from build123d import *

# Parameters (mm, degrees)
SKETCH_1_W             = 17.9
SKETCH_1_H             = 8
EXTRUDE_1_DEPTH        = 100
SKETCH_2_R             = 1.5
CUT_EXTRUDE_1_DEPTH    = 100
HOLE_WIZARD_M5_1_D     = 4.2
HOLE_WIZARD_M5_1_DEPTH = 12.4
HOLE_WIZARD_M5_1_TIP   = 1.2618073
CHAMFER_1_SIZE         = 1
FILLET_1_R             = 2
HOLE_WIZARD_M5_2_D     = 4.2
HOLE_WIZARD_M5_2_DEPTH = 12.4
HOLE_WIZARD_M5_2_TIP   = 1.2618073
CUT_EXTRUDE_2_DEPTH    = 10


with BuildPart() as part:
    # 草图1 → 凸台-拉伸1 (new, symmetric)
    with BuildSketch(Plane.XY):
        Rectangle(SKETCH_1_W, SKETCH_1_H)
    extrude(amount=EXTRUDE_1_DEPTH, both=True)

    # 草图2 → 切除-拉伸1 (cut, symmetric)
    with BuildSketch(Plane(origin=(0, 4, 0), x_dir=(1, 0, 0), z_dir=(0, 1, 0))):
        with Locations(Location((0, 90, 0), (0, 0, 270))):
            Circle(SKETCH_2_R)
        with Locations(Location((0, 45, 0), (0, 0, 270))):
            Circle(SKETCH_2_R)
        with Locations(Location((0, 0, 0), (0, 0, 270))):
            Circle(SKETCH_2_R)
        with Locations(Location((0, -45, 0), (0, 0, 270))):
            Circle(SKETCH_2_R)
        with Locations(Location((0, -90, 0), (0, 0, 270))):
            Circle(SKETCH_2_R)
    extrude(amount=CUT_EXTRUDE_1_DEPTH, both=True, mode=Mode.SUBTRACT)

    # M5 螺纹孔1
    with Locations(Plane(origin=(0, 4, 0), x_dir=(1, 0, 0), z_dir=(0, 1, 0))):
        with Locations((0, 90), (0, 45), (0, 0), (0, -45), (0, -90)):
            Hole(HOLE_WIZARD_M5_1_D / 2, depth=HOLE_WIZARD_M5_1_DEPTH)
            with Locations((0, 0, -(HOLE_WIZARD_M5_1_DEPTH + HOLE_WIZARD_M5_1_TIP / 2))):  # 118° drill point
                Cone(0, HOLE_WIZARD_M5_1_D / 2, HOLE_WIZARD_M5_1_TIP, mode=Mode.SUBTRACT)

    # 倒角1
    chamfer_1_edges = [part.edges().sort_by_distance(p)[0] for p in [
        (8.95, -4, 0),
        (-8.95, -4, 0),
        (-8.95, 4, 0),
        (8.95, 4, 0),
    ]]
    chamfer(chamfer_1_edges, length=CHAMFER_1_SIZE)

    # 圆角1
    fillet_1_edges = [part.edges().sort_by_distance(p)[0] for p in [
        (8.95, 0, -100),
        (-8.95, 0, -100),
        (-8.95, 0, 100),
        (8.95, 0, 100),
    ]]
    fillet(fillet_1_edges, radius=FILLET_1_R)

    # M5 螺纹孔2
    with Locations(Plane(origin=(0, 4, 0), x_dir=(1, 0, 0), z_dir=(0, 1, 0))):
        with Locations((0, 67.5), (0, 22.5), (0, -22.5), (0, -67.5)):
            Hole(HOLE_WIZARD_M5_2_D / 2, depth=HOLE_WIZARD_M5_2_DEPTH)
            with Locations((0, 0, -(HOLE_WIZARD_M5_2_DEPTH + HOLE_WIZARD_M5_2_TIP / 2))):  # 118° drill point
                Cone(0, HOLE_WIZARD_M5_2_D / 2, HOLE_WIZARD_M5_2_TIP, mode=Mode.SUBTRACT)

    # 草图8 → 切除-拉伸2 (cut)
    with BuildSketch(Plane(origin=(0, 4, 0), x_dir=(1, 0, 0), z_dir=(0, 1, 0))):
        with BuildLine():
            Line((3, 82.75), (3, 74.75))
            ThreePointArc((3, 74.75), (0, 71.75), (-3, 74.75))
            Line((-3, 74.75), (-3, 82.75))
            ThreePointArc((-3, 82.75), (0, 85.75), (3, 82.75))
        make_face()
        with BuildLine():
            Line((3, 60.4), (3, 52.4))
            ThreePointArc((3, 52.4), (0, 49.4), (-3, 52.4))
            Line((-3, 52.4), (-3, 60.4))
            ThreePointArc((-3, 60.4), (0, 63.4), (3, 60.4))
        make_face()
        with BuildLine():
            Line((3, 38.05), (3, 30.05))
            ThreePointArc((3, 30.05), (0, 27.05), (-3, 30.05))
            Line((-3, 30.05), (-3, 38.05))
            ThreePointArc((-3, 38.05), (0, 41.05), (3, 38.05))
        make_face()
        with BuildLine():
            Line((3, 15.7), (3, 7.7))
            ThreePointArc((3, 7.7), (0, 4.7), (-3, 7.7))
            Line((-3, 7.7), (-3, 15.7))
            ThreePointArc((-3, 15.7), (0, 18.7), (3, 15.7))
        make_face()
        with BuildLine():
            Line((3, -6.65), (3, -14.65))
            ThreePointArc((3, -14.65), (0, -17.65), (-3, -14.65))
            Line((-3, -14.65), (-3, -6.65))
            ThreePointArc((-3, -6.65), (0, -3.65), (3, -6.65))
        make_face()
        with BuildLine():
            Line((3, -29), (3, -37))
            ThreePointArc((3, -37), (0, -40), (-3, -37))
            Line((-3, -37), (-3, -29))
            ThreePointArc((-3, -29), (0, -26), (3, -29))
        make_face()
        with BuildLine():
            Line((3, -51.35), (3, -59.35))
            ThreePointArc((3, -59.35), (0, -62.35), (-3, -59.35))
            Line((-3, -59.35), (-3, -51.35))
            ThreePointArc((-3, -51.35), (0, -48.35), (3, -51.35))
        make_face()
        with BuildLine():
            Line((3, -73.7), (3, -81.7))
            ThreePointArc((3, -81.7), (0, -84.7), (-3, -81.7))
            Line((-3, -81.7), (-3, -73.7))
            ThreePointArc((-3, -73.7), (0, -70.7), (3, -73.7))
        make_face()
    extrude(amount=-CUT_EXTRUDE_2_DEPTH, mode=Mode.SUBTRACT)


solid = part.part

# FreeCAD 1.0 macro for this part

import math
import FreeCAD as App
import Part
import Sketcher

V = App.Vector
Q = App.Units.Quantity


def edges_at(feature, points):
    """Names of the edges that pass closest to the given points."""
    edges = feature.Shape.Edges
    near = lambda p: min(range(len(edges)), key=lambda i: edges[i].distToShape(Part.Vertex(*p))[0])
    return sorted({f"Edge{near(p) + 1}" for p in points})

doc = App.newDocument("Part")
body = doc.addObject("PartDesign::Body", "Body")

sketch1 = body.newObject("Sketcher::SketchObject", "Sketch")
sketch1.AttachmentSupport = (doc.getObject("XY_Plane"), [""])
sketch1.MapMode = "FlatFace"
sketch1.addGeometry([
    Part.LineSegment(V(-9, 4, 0), V(-9, -4, 0)),
    Part.LineSegment(V(-9, -4, 0), V(9, -4, 0)),
    Part.LineSegment(V(9, -4, 0), V(9, 4, 0)),
    Part.LineSegment(V(9, 4, 0), V(-9, 4, 0)),
], False)
sketch1.addConstraint([
    Sketcher.Constraint("Coincident", 0, 2, 1, 1),
    Sketcher.Constraint("Coincident", 1, 2, 2, 1),
    Sketcher.Constraint("Coincident", 2, 2, 3, 1),
    Sketcher.Constraint("Coincident", 3, 2, 0, 1),
    Sketcher.Constraint("Vertical", 0),
    Sketcher.Constraint("Horizontal", 1),
    Sketcher.Constraint("Vertical", 2),
    Sketcher.Constraint("Horizontal", 3),
    Sketcher.Constraint("Symmetric", 0, 2, 2, 2, -1, 1),
    Sketcher.Constraint("DistanceY", 0, 2, 0, 1, Q("8 mm")),
    Sketcher.Constraint("DistanceX", 1, 1, 1, 2, Q("17.9 mm")),
])
pad1 = body.newObject("PartDesign::Pad", "Pad")
pad1.Profile = sketch1
pad1.Length = 200
pad1.Midplane = True

sketch2 = body.newObject("Sketcher::SketchObject", "Sketch001")
sketch2.AttachmentSupport = (doc.getObject("XZ_Plane"), [""])
sketch2.MapMode = "FlatFace"
sketch2.AttachmentOffset = App.Placement(V(0, 0, -4), App.Rotation())
sketch2.addGeometry([
    Part.Circle(V(0, -90, 0), V(0, 0, 1), 1.5),
    Part.Circle(V(0, -45, 0), V(0, 0, 1), 1.5),
    Part.Circle(V(0, 0, 0), V(0, 0, 1), 1.5),
    Part.Circle(V(0, 45, 0), V(0, 0, 1), 1.5),
    Part.Circle(V(0, 90, 0), V(0, 0, 1), 1.5),
], False)
sketch2.addConstraint([
    Sketcher.Constraint("Coincident", 2, 3, -1, 1),
    Sketcher.Constraint("Equal", 0, 1),
    Sketcher.Constraint("Equal", 1, 2),
    Sketcher.Constraint("Equal", 2, 3),
    Sketcher.Constraint("Equal", 3, 4),
    Sketcher.Constraint("Symmetric", 1, 3, 3, 3, -1, 1),
    Sketcher.Constraint("Symmetric", 0, 3, 4, 3, -1, 1),
    Sketcher.Constraint("PointOnObject", 0, 3, -2),
    Sketcher.Constraint("PointOnObject", 1, 3, -2),
    Sketcher.Constraint("Diameter", 0, Q("3 mm")),
    Sketcher.Constraint("DistanceY", 0, 3, -1, 1, Q("90 mm")),
    Sketcher.Constraint("DistanceY", 1, 3, -1, 1, Q("45 mm")),
])
pocket1 = body.newObject("PartDesign::Pocket", "Pocket")
pocket1.Profile = sketch2
pocket1.Length = 200
pocket1.Midplane = True

sketch3 = body.newObject("Sketcher::SketchObject", "Sketch002")
sketch3.AttachmentSupport = (doc.getObject("XZ_Plane"), [""])
sketch3.MapMode = "FlatFace"
sketch3.AttachmentOffset = App.Placement(V(0, 0, -4), App.Rotation())
sketch3.addGeometry([
    Part.Circle(V(0, -90, 0), V(0, 0, 1), 2.1),
    Part.Circle(V(0, -45, 0), V(0, 0, 1), 2.1),
    Part.Circle(V(0, 0, 0), V(0, 0, 1), 2.1),
    Part.Circle(V(0, 45, 0), V(0, 0, 1), 2.1),
    Part.Circle(V(0, 90, 0), V(0, 0, 1), 2.1),
], False)
sketch3.addConstraint([
    Sketcher.Constraint("Coincident", 2, 3, -1, 1),
    Sketcher.Constraint("Equal", 0, 1),
    Sketcher.Constraint("Equal", 1, 2),
    Sketcher.Constraint("Equal", 2, 3),
    Sketcher.Constraint("Equal", 3, 4),
    Sketcher.Constraint("Symmetric", 1, 3, 3, 3, -1, 1),
    Sketcher.Constraint("Symmetric", 0, 3, 4, 3, -1, 1),
    Sketcher.Constraint("PointOnObject", 0, 3, -2),
    Sketcher.Constraint("PointOnObject", 1, 3, -2),
    Sketcher.Constraint("Diameter", 0, Q("4.2 mm")),
    Sketcher.Constraint("DistanceY", 0, 3, -1, 1, Q("90 mm")),
    Sketcher.Constraint("DistanceY", 1, 3, -1, 1, Q("45 mm")),
])
doc.recompute()
hole = body.newObject("PartDesign::Hole", "Hole")
hole.Profile = sketch3
hole.ThreadType = "None"
hole.Diameter = 4.2
hole.DepthType = "Dimension"
hole.Depth = 12.4
hole.DrillPoint = "Angled"
hole.DrillPointAngle = 118
hole.Reversed = True
doc.recompute()

chamfer = body.newObject("PartDesign::Chamfer", "Chamfer")
chamfer.Base = (hole, edges_at(hole, [
    (8.95, -4, 0),
    (-8.95, -4, 0),
    (-8.95, 4, 0),
    (8.95, 4, 0),
]))
chamfer.Size = 1
doc.recompute()

fillet = body.newObject("PartDesign::Fillet", "Fillet")
fillet.Base = (chamfer, edges_at(chamfer, [
    (8.95, 0, -100),
    (-8.95, 0, -100),
    (-8.95, 0, 100),
    (8.95, 0, 100),
]))
fillet.Radius = 2

sketch4 = body.newObject("Sketcher::SketchObject", "Sketch003")
sketch4.AttachmentSupport = (doc.getObject("XZ_Plane"), [""])
sketch4.MapMode = "FlatFace"
sketch4.AttachmentOffset = App.Placement(V(0, 0, -4), App.Rotation())
sketch4.addGeometry([
    Part.Circle(V(0, -67.5, 0), V(0, 0, 1), 2.1),
    Part.Circle(V(0, -22.5, 0), V(0, 0, 1), 2.1),
    Part.Circle(V(0, 22.5, 0), V(0, 0, 1), 2.1),
    Part.Circle(V(0, 67.5, 0), V(0, 0, 1), 2.1),
], False)
sketch4.addConstraint([
    Sketcher.Constraint("Equal", 0, 1),
    Sketcher.Constraint("Equal", 1, 2),
    Sketcher.Constraint("Equal", 2, 3),
    Sketcher.Constraint("Symmetric", 1, 3, 2, 3, -1, 1),
    Sketcher.Constraint("Symmetric", 0, 3, 3, 3, -1, 1),
    Sketcher.Constraint("PointOnObject", 0, 3, -2),
    Sketcher.Constraint("PointOnObject", 1, 3, -2),
    Sketcher.Constraint("Diameter", 0, Q("4.2 mm")),
    Sketcher.Constraint("DistanceY", 0, 3, 1, 3, Q("45 mm")),
    Sketcher.Constraint("DistanceY", 1, 3, 2, 3, Q("45 mm")),
])
doc.recompute()
hole2 = body.newObject("PartDesign::Hole", "Hole001")
hole2.Profile = sketch4
hole2.ThreadType = "None"
hole2.Diameter = 4.2
hole2.DepthType = "Dimension"
hole2.Depth = 12.4
hole2.DrillPoint = "Angled"
hole2.DrillPointAngle = 118
hole2.Reversed = True

sketch5 = body.newObject("Sketcher::SketchObject", "Sketch004")
sketch5.AttachmentSupport = (doc.getObject("XZ_Plane"), [""])
sketch5.MapMode = "FlatFace"
sketch5.AttachmentOffset = App.Placement(V(0, 0, -4), App.Rotation())
sketch5.addGeometry([
    Part.LineSegment(V(3, -74.8, 0), V(3, -82.8, 0)),
    Part.ArcOfCircle(Part.Circle(V(0, -82.8, 0), V(0, 0, 1), 3), math.radians(180), math.radians(360)),
    Part.LineSegment(V(-3, -82.8, 0), V(-3, -74.8, 0)),
    Part.ArcOfCircle(Part.Circle(V(0, -74.8, 0), V(0, 0, 1), 3), math.radians(0), math.radians(180)),
    Part.LineSegment(V(3, -52.4, 0), V(3, -60.4, 0)),
    Part.ArcOfCircle(Part.Circle(V(0, -60.4, 0), V(0, 0, 1), 3), math.radians(180), math.radians(360)),
    Part.LineSegment(V(-3, -60.4, 0), V(-3, -52.4, 0)),
    Part.ArcOfCircle(Part.Circle(V(0, -52.4, 0), V(0, 0, 1), 3), math.radians(0), math.radians(180)),
    Part.LineSegment(V(3, -30.1, 0), V(3, -38, 0)),
    Part.ArcOfCircle(Part.Circle(V(0, -38, 0), V(0, 0, 1), 3), math.radians(180), math.radians(360)),
    Part.LineSegment(V(-3, -38, 0), V(-3, -30.1, 0)),
    Part.ArcOfCircle(Part.Circle(V(0, -30.1, 0), V(0, 0, 1), 3), math.radians(0), math.radians(180)),
    Part.LineSegment(V(3, -7.7, 0), V(3, -15.7, 0)),
    Part.ArcOfCircle(Part.Circle(V(0, -15.7, 0), V(0, 0, 1), 3), math.radians(180), math.radians(360)),
    Part.LineSegment(V(-3, -15.7, 0), V(-3, -7.7, 0)),
    Part.ArcOfCircle(Part.Circle(V(0, -7.7, 0), V(0, 0, 1), 3), math.radians(0), math.radians(180)),
    Part.LineSegment(V(3, 14.7, 0), V(3, 6.7, 0)),
    Part.ArcOfCircle(Part.Circle(V(0, 6.7, 0), V(0, 0, 1), 3), math.radians(180), math.radians(360)),
    Part.LineSegment(V(-3, 6.7, 0), V(-3, 14.7, 0)),
    Part.ArcOfCircle(Part.Circle(V(0, 14.7, 0), V(0, 0, 1), 3), math.radians(0), math.radians(180)),
    Part.LineSegment(V(3, 37, 0), V(3, 29, 0)),
    Part.ArcOfCircle(Part.Circle(V(0, 29, 0), V(0, 0, 1), 3), math.radians(180), math.radians(360)),
    Part.LineSegment(V(-3, 29, 0), V(-3, 37, 0)),
    Part.ArcOfCircle(Part.Circle(V(0, 37, 0), V(0, 0, 1), 3), math.radians(0), math.radians(180)),
    Part.LineSegment(V(3, 59.4, 0), V(3, 51.4, 0)),
    Part.ArcOfCircle(Part.Circle(V(0, 51.4, 0), V(0, 0, 1), 3), math.radians(180), math.radians(360)),
    Part.LineSegment(V(-3, 51.4, 0), V(-3, 59.4, 0)),
    Part.ArcOfCircle(Part.Circle(V(0, 59.4, 0), V(0, 0, 1), 3), math.radians(0), math.radians(180)),
    Part.LineSegment(V(3, 81.7, 0), V(3, 73.7, 0)),
    Part.ArcOfCircle(Part.Circle(V(0, 73.7, 0), V(0, 0, 1), 3), math.radians(180), math.radians(360)),
    Part.LineSegment(V(-3, 73.7, 0), V(-3, 81.7, 0)),
    Part.ArcOfCircle(Part.Circle(V(0, 81.7, 0), V(0, 0, 1), 3), math.radians(0), math.radians(180)),
], False)
sketch5.addConstraint([
    Sketcher.Constraint("Tangent", 0, 2, 1, 2),
    Sketcher.Constraint("Tangent", 1, 1, 2, 1),
    Sketcher.Constraint("Tangent", 2, 2, 3, 2),
    Sketcher.Constraint("Tangent", 3, 1, 0, 1),
    Sketcher.Constraint("Tangent", 4, 2, 5, 2),
    Sketcher.Constraint("Tangent", 5, 1, 6, 1),
    Sketcher.Constraint("Tangent", 6, 2, 7, 2),
    Sketcher.Constraint("Tangent", 7, 1, 4, 1),
    Sketcher.Constraint("Tangent", 8, 2, 9, 2),
    Sketcher.Constraint("Tangent", 9, 1, 10, 1),
    Sketcher.Constraint("Tangent", 10, 2, 11, 2),
    Sketcher.Constraint("Tangent", 11, 1, 8, 1),
    Sketcher.Constraint("Tangent", 12, 2, 13, 2),
    Sketcher.Constraint("Tangent", 13, 1, 14, 1),
    Sketcher.Constraint("Tangent", 14, 2, 15, 2),
    Sketcher.Constraint("Tangent", 15, 1, 12, 1),
    Sketcher.Constraint("Tangent", 16, 2, 17, 2),
    Sketcher.Constraint("Tangent", 17, 1, 18, 1),
    Sketcher.Constraint("Tangent", 18, 2, 19, 2),
    Sketcher.Constraint("Tangent", 19, 1, 16, 1),
    Sketcher.Constraint("Tangent", 20, 2, 21, 2),
    Sketcher.Constraint("Tangent", 21, 1, 22, 1),
    Sketcher.Constraint("Tangent", 22, 2, 23, 2),
    Sketcher.Constraint("Tangent", 23, 1, 20, 1),
    Sketcher.Constraint("Tangent", 24, 2, 25, 2),
    Sketcher.Constraint("Tangent", 25, 1, 26, 1),
    Sketcher.Constraint("Tangent", 26, 2, 27, 2),
    Sketcher.Constraint("Tangent", 27, 1, 24, 1),
    Sketcher.Constraint("Tangent", 28, 2, 29, 2),
    Sketcher.Constraint("Tangent", 29, 1, 30, 1),
    Sketcher.Constraint("Tangent", 30, 2, 31, 2),
    Sketcher.Constraint("Tangent", 31, 1, 28, 1),
    Sketcher.Constraint("Vertical", 0),
    Sketcher.Constraint("Vertical", 2),
    Sketcher.Constraint("Vertical", 4),
    Sketcher.Constraint("Vertical", 6),
    Sketcher.Constraint("Vertical", 8),
    Sketcher.Constraint("Vertical", 10),
    Sketcher.Constraint("Vertical", 12),
    Sketcher.Constraint("Vertical", 14),
    Sketcher.Constraint("Vertical", 16),
    Sketcher.Constraint("Vertical", 18),
    Sketcher.Constraint("Vertical", 20),
    Sketcher.Constraint("Vertical", 22),
    Sketcher.Constraint("Vertical", 24),
    Sketcher.Constraint("Vertical", 26),
    Sketcher.Constraint("Vertical", 28),
    Sketcher.Constraint("Vertical", 30),
    Sketcher.Constraint("Equal", 3, 5),
    Sketcher.Constraint("Equal", 7, 9),
    Sketcher.Constraint("Equal", 11, 13),
    Sketcher.Constraint("Equal", 15, 17),
    Sketcher.Constraint("Equal", 19, 21),
    Sketcher.Constraint("Equal", 23, 25),
    Sketcher.Constraint("Equal", 27, 29),
    Sketcher.Constraint("PointOnObject", 1, 3, -2),
    Sketcher.Constraint("PointOnObject", 5, 3, -2),
    Sketcher.Constraint("PointOnObject", 9, 3, -2),
    Sketcher.Constraint("PointOnObject", 13, 3, -2),
    Sketcher.Constraint("PointOnObject", 17, 3, -2),
    Sketcher.Constraint("PointOnObject", 21, 3, -2),
    Sketcher.Constraint("PointOnObject", 25, 3, -2),
    Sketcher.Constraint("PointOnObject", 29, 3, -2),
    Sketcher.Constraint("Equal", 2, 4),
    Sketcher.Constraint("Equal", 6, 8),
    Sketcher.Constraint("Equal", 10, 12),
    Sketcher.Constraint("Equal", 14, 16),
    Sketcher.Constraint("Equal", 18, 20),
    Sketcher.Constraint("Equal", 22, 24),
    Sketcher.Constraint("Equal", 26, 28),
    Sketcher.Constraint("Radius", 1, Q("3 mm")),
    Sketcher.Constraint("DistanceY", 0, 2, 0, 1, Q("8 mm")),
    Sketcher.Constraint("DistanceY", -1, 1, 21, 3, Q("29 mm")),
    Sketcher.Constraint("DistanceY", 5, 3, -1, 1, Q("60.4 mm")),
    Sketcher.Constraint("DistanceY", 13, 3, -1, 1, Q("15.7 mm")),
    Sketcher.Constraint("DistanceY", -1, 1, 29, 3, Q("73.7 mm")),
    Sketcher.Constraint("DistanceY", 3, 3, 9, 3, Q("36.7 mm")),
    Sketcher.Constraint("DistanceY", 11, 3, 17, 3, Q("36.7 mm")),
    Sketcher.Constraint("DistanceY", 19, 3, 25, 3, Q("36.7 mm")),
    Sketcher.Constraint("DistanceY", 1, 3, -1, 1, Q("82.75 mm")),
])
pocket2 = body.newObject("PartDesign::Pocket", "Pocket001")
pocket2.Profile = sketch5
pocket2.Length = 10
pocket2.Reversed = True

doc.recompute()
